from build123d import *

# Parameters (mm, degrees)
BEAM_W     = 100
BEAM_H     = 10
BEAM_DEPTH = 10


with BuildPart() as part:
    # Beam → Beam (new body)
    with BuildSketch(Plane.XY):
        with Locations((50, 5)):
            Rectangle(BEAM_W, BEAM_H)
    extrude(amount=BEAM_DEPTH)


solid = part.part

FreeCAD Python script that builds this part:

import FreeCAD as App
import Part
import Sketcher

V = App.Vector

doc = App.newDocument("Part")
body = doc.addObject("PartDesign::Body", "Body")

# Sketch on XY plane
sketch1 = body.newObject("Sketcher::SketchObject", "Sketch")
sketch1.AttachmentSupport = (doc.getObject("XY_Plane"), [""])
sketch1.MapMode = "FlatFace"
sketch1.addGeometry(Part.LineSegment(V(0, 10, 0), V(0, 0, 0)), False)
sketch1.addGeometry(Part.LineSegment(V(0, 0, 0), V(100, 0, 0)), False)
sketch1.addGeometry(Part.LineSegment(V(100, 0, 0), V(100, 10, 0)), False)
sketch1.addGeometry(Part.LineSegment(V(100, 10, 0), V(0, 10, 0)), False)
sketch1.addConstraint(Sketcher.Constraint("Coincident", 0, 2, 1, 1))
sketch1.addConstraint(Sketcher.Constraint("Coincident", 1, 2, 2, 1))
sketch1.addConstraint(Sketcher.Constraint("Coincident", 2, 2, 3, 1))
sketch1.addConstraint(Sketcher.Constraint("Coincident", 3, 2, 0, 1))
sketch1.addConstraint(Sketcher.Constraint("Vertical", 0))
sketch1.addConstraint(Sketcher.Constraint("Horizontal", 1))
sketch1.addConstraint(Sketcher.Constraint("Vertical", 2))
sketch1.addConstraint(Sketcher.Constraint("Horizontal", 3))
sketch1.addConstraint(Sketcher.Constraint("Coincident", 0, 2, -1, 1))
sketch1.addConstraint(Sketcher.Constraint("DistanceX", 1, 1, 1, 2, 100.0))
sketch1.addConstraint(Sketcher.Constraint("DistanceY", 0, 2, 0, 1, 10.0))
pad1 = body.newObject("PartDesign::Pad", "Pad")
pad1.Profile = sketch1
pad1.Length = 10

doc.recompute()
